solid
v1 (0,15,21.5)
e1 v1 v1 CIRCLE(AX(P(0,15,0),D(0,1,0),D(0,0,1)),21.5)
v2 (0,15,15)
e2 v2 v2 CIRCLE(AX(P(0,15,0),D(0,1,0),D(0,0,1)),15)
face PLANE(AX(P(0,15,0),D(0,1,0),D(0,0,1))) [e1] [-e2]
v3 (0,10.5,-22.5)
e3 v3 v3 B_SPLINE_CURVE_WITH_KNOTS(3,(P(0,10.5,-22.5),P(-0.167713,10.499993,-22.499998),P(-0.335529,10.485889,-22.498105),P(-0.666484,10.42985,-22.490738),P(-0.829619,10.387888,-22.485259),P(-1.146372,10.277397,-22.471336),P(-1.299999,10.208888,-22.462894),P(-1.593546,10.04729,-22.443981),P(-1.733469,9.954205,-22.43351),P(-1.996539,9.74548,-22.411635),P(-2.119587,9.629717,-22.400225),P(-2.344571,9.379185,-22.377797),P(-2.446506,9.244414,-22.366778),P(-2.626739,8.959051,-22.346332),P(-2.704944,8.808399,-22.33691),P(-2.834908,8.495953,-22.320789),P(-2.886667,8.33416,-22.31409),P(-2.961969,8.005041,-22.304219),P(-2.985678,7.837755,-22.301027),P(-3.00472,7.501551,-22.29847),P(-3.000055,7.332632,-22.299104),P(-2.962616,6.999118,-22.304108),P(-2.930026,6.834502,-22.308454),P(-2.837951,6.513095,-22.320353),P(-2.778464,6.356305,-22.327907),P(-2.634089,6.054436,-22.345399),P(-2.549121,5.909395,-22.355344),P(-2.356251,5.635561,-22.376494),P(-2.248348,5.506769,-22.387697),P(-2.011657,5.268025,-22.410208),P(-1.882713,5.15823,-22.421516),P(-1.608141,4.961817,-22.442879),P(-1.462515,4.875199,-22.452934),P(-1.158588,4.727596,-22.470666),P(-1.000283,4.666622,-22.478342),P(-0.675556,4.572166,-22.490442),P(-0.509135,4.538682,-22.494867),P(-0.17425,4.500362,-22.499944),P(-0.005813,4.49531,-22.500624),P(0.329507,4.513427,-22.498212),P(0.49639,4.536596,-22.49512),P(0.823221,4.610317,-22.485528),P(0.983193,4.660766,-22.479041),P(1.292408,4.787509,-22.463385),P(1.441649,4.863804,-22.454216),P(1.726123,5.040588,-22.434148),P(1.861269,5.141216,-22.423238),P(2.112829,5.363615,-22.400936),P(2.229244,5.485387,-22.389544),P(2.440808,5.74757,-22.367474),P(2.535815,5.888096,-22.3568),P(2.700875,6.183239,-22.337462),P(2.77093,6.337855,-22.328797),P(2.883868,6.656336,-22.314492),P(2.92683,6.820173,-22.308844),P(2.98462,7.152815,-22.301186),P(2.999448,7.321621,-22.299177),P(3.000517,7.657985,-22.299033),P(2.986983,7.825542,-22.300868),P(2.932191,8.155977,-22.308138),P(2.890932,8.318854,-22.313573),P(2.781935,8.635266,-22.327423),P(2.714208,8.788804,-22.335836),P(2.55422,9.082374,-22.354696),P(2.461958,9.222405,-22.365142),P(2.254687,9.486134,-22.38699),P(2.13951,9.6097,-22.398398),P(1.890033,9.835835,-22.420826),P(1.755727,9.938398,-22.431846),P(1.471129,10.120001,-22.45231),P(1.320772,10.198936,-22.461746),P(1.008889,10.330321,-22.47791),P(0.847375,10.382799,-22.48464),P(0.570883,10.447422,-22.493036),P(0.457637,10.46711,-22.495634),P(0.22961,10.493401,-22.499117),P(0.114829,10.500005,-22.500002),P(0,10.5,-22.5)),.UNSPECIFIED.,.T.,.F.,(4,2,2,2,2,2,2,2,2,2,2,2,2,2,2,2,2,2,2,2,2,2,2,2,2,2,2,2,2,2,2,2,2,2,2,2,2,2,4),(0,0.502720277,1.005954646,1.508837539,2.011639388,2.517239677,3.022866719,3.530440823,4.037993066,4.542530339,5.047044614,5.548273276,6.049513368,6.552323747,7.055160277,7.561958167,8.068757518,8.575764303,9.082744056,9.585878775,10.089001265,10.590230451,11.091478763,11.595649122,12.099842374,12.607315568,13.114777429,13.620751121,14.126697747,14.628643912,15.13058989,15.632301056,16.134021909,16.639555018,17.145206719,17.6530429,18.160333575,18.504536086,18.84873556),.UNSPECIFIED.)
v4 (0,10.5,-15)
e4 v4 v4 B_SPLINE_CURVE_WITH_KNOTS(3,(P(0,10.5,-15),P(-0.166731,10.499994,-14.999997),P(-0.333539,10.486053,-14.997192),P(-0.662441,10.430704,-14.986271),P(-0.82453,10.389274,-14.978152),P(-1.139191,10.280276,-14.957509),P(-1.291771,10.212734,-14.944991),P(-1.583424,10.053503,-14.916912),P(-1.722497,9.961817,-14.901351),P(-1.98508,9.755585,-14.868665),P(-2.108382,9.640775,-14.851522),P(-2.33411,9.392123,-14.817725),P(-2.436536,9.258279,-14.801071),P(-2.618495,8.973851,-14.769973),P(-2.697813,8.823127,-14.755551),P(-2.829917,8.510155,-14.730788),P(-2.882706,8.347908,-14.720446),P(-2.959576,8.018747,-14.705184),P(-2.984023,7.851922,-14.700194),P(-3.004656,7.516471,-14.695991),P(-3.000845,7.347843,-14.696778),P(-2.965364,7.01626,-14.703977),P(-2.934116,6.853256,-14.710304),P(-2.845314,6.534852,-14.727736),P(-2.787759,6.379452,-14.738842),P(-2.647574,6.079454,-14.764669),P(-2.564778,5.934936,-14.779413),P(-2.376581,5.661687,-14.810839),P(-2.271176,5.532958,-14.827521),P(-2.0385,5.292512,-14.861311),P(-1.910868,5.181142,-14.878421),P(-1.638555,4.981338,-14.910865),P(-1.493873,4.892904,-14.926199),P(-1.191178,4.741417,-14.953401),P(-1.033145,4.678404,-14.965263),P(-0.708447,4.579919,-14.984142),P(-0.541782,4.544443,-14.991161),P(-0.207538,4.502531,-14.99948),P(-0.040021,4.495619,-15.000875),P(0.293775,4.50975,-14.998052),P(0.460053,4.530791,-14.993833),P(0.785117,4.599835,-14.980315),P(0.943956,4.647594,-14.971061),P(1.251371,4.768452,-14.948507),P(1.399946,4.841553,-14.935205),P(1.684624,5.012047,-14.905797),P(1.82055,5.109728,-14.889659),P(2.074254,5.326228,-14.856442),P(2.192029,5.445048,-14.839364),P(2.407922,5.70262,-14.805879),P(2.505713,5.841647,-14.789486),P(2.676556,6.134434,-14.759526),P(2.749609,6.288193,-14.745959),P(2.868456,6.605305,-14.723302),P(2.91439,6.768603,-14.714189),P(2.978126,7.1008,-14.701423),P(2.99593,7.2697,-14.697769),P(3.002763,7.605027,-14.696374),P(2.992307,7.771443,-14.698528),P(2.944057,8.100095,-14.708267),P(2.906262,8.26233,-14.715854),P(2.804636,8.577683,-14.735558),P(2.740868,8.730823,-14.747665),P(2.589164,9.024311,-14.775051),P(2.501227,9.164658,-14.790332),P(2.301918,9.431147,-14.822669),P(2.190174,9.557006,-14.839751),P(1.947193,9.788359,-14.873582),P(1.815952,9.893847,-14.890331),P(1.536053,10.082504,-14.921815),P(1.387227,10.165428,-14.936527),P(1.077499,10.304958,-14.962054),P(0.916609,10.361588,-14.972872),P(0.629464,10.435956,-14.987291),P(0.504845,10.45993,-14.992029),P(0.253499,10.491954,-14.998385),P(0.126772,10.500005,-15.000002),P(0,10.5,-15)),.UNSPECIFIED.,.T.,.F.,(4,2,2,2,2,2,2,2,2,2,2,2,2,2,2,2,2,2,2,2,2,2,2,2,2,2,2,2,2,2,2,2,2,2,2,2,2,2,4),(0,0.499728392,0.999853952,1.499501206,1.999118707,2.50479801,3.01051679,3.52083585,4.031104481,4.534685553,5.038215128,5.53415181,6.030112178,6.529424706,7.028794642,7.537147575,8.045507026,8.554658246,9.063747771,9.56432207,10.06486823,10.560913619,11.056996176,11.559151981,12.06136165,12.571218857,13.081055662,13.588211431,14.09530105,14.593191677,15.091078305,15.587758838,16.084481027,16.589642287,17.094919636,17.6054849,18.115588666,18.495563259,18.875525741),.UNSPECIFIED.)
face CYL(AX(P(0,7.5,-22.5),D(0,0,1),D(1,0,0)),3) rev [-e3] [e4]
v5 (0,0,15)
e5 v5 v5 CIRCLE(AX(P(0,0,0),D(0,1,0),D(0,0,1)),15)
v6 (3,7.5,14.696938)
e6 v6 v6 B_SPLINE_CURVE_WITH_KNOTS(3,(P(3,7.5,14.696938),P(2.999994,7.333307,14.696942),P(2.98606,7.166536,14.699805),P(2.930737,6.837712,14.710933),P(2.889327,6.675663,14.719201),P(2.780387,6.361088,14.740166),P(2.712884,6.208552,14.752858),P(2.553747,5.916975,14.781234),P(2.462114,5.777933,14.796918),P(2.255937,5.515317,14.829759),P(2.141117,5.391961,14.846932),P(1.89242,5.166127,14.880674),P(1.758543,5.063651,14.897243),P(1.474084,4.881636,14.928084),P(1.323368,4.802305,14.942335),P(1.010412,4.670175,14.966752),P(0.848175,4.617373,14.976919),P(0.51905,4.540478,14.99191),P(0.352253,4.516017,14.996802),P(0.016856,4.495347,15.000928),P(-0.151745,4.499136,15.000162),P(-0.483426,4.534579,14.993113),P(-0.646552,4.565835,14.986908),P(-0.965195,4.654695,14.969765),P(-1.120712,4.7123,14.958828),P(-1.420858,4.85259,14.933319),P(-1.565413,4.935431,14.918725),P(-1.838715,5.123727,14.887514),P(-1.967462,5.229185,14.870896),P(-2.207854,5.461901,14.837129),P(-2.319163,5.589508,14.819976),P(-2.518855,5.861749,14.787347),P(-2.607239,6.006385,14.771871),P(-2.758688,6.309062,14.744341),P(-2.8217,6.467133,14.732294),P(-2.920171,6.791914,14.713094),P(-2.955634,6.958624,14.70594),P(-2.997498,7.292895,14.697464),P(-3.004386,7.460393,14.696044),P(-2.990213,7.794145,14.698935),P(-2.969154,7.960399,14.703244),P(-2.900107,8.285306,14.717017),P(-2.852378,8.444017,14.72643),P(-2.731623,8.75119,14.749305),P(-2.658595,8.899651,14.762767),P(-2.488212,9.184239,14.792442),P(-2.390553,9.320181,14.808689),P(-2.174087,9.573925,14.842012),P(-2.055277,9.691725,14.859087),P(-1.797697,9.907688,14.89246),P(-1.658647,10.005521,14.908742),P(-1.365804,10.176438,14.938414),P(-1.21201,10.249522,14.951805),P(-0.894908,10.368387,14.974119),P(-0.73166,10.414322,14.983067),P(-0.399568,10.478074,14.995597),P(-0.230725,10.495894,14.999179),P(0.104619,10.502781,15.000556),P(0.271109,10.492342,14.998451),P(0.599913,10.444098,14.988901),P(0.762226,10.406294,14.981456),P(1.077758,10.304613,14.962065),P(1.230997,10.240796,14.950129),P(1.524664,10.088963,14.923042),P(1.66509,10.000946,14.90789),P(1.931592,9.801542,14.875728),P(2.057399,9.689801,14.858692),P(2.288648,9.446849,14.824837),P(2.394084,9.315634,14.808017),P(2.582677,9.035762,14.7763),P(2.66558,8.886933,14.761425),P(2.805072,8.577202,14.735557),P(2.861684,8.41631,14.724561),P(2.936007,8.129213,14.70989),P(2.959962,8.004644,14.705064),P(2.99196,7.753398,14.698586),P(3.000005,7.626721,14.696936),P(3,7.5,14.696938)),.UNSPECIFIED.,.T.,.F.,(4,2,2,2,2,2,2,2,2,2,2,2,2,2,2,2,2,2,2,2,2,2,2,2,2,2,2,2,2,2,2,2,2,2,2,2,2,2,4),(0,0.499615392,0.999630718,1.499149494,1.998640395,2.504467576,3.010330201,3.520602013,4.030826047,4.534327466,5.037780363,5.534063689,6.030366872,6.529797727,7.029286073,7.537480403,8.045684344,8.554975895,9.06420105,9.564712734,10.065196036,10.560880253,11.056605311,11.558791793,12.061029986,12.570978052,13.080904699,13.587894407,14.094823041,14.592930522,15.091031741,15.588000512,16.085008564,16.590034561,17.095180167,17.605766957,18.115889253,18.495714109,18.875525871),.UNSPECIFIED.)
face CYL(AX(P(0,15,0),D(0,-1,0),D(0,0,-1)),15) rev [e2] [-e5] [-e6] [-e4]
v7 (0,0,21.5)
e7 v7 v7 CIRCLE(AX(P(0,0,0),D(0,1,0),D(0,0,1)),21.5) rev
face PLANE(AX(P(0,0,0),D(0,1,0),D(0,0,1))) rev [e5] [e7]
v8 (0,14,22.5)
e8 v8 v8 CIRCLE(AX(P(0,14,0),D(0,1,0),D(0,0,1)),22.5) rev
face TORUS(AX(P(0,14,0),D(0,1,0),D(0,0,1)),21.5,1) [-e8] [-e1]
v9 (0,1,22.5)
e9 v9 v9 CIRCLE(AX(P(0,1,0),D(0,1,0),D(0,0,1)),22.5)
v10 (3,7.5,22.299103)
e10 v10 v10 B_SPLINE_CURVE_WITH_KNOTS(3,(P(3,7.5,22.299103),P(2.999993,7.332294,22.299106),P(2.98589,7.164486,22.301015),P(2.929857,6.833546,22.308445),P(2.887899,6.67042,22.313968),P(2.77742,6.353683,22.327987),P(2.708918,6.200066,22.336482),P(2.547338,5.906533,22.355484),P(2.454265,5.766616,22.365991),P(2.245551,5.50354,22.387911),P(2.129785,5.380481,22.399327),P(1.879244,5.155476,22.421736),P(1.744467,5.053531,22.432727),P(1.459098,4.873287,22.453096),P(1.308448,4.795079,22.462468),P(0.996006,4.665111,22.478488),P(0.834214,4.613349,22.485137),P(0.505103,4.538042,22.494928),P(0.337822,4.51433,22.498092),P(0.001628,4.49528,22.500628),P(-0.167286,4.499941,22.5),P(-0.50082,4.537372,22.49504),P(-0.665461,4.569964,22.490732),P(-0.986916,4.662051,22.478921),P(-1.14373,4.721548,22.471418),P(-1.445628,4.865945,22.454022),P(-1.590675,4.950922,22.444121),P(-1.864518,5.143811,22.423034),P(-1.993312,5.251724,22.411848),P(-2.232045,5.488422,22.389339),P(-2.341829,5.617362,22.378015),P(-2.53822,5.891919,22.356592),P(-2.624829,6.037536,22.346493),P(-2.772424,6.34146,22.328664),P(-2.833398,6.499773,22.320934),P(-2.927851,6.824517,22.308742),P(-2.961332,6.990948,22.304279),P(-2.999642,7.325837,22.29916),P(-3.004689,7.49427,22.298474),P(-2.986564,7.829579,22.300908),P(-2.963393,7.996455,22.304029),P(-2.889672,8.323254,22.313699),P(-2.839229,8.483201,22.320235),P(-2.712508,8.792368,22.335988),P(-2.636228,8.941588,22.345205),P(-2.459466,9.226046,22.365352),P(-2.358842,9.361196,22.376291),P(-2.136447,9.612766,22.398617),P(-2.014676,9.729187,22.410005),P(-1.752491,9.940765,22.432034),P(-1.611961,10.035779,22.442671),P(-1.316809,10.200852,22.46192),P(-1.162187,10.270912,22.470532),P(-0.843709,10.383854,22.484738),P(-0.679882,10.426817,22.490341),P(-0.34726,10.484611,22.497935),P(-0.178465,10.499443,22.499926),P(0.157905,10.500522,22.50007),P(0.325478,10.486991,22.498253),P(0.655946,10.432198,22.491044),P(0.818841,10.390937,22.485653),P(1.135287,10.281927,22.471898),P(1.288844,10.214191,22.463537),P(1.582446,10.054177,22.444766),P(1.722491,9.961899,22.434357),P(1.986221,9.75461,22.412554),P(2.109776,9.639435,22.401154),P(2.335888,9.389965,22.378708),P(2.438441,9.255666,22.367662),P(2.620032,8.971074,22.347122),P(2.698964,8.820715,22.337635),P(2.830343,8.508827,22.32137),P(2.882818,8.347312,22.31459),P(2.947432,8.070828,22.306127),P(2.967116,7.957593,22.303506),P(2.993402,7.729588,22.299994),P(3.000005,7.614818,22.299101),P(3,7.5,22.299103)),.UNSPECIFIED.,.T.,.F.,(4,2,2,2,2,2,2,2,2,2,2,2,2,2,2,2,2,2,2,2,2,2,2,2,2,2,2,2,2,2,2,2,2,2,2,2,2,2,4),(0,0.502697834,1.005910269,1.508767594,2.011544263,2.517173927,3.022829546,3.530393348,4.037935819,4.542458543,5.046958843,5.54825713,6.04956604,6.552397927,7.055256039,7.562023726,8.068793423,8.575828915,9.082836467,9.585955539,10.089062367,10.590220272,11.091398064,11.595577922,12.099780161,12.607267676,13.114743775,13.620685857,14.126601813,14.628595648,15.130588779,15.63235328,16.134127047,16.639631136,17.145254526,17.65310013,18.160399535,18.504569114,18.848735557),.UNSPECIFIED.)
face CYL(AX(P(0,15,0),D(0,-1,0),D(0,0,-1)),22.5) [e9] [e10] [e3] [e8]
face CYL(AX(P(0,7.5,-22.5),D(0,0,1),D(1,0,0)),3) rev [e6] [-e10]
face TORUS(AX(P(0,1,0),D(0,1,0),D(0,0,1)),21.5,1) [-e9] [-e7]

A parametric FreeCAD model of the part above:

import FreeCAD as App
import Part
import Sketcher
from FreeCAD import Vector
Q = App.Units.Quantity


def edges_at(feature, points):
    """Names of the edges that pass closest to the given points."""
    edges = feature.Shape.Edges
    near = lambda p: min(range(len(edges)), key=lambda i: edges[i].distToShape(Part.Vertex(*p))[0])
    return sorted({f"Edge{near(p) + 1}" for p in points})

doc = App.newDocument("Part")
body = doc.addObject("PartDesign::Body", "Body")

# Sketch on XZ plane
sketch1 = body.newObject("Sketcher::SketchObject", "Sketch")
sketch1.AttachmentSupport = (doc.getObject("XZ_Plane"), [""])
sketch1.MapMode = "FlatFace"
sketch1.addGeometry([
    Part.Circle(Vector(0, 0, 0), Vector(0, 0, 1), 22),
    Part.Circle(Vector(0, 0, 0), Vector(0, 0, 1), 15),
], False)
sketch1.addConstraint([
    Sketcher.Constraint("Coincident", 0, 3, -1, 1),
    Sketcher.Constraint("Coincident", 1, 3, -1, 1),
    Sketcher.Constraint("Diameter", 0, Q("45 mm")),
    Sketcher.Constraint("Diameter", 1, Q("30 mm")),
])
pad1 = body.newObject("PartDesign::Pad", "Pad")
pad1.Profile = sketch1
pad1.Length = 15
pad1.Reversed = True

# Sketch on XY plane
sketch2 = body.newObject("Sketcher::SketchObject", "Sketch001")
sketch2.AttachmentSupport = (doc.getObject("XY_Plane"), [""])
sketch2.MapMode = "FlatFace"
sketch2.addGeometry(Part.Circle(Vector(0, 7.5, 0), Vector(0, 0, 1), 3), False)
sketch2.addConstraint([
    Sketcher.Constraint("PointOnObject", 0, 3, -2),
    Sketcher.Constraint("Diameter", 0, Q("6 mm")),
    Sketcher.Constraint("DistanceY", -1, 1, 0, 3, Q("7.5 mm")),
])
pocket1 = body.newObject("PartDesign::Pocket", "Pocket")
pocket1.Profile = sketch2
pocket1.Type = "ThroughAll"
pocket1.Midplane = True
doc.recompute()

fillet = body.newObject("PartDesign::Fillet", "Fillet")
fillet.Base = (pocket1, edges_at(pocket1, [(-22.5, 0, 0), (-22.5, 15, 0)]))
fillet.Radius = 1

doc.recompute()
